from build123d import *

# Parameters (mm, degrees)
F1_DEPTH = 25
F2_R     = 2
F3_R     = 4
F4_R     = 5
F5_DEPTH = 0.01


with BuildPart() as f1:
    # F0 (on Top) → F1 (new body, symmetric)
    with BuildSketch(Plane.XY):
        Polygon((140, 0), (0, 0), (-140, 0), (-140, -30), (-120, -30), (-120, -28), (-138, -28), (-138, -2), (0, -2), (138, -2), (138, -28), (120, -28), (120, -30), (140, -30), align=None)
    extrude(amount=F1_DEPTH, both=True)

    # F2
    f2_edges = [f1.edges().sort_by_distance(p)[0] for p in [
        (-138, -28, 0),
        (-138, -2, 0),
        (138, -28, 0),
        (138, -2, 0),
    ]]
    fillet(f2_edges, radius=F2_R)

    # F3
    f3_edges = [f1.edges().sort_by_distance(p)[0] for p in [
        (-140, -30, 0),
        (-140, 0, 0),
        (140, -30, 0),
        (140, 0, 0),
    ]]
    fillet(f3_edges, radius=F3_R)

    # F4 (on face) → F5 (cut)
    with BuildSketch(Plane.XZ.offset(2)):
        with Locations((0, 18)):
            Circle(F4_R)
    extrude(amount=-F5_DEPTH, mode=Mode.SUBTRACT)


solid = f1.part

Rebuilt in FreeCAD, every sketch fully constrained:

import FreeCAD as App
import Part
import Sketcher


def edges_at(feature, points):
    """Names of the edges that pass closest to the given points."""
    edges = feature.Shape.Edges
    near = lambda p: min(range(len(edges)), key=lambda i: edges[i].distToShape(Part.Vertex(*p))[0])
    return sorted({f"Edge{near(p) + 1}" for p in points})

doc = App.newDocument("Part")
params = doc.addObject("Spreadsheet::Sheet", "Params")
for row, (alias, value) in enumerate([
    ("sketch1_width", "280 mm"),
    ("sketch1_width2", "20 mm"),
    ("sketch1_width3", "18 mm"),
    ("sketch1_height", "30 mm"),
    ("sketch1_height2", "2 mm"),
    ("pad1_length", "50 mm"),
    ("fillet_radius", "2 mm"),
    ("fillet2_radius", "4 mm"),
    ("sketch2_diameter", "10 mm"),
    ("pocket1_length", "0.01 mm"),
], start=1):
    params.set(f"A{row}", alias)
    params.set(f"B{row}", "=" + value)
    params.setAlias(f"B{row}", alias)

body = doc.addObject("PartDesign::Body", "Body")

sketch1 = doc.addObject("Sketcher::SketchObject", "Sketch")
body.addObject(sketch1)
sketch1.AttachmentSupport = (doc.XY_Plane, [""])
sketch1.MapMode = "FlatFace"
sketch1.addGeometry(Part.LineSegment(App.Vector(140, 0, 0), App.Vector(-140, 0, 0)), False)
sketch1.addGeometry(Part.LineSegment(App.Vector(-140, 0, 0), App.Vector(-140, -30, 0)), False)
sketch1.addGeometry(Part.LineSegment(App.Vector(-140, -30, 0), App.Vector(-120, -30, 0)), False)
sketch1.addGeometry(Part.LineSegment(App.Vector(-120, -30, 0), App.Vector(-120, -28, 0)), False)
sketch1.addGeometry(Part.LineSegment(App.Vector(-120, -28, 0), App.Vector(-138, -28, 0)), False)
sketch1.addGeometry(Part.LineSegment(App.Vector(-138, -28, 0), App.Vector(-138, -2, 0)), False)
sketch1.addGeometry(Part.LineSegment(App.Vector(-138, -2, 0), App.Vector(138, -2, 0)), False)
sketch1.addGeometry(Part.LineSegment(App.Vector(138, -2, 0), App.Vector(138, -28, 0)), False)
sketch1.addGeometry(Part.LineSegment(App.Vector(138, -28, 0), App.Vector(120, -28, 0)), False)
sketch1.addGeometry(Part.LineSegment(App.Vector(120, -28, 0), App.Vector(120, -30, 0)), False)
sketch1.addGeometry(Part.LineSegment(App.Vector(120, -30, 0), App.Vector(140, -30, 0)), False)
sketch1.addGeometry(Part.LineSegment(App.Vector(140, -30, 0), App.Vector(140, 0, 0)), False)
sketch1.addConstraint(Sketcher.Constraint("Coincident", 0, 2, 1, 1))
sketch1.addConstraint(Sketcher.Constraint("Coincident", 1, 2, 2, 1))
sketch1.addConstraint(Sketcher.Constraint("Coincident", 2, 2, 3, 1))
sketch1.addConstraint(Sketcher.Constraint("Coincident", 3, 2, 4, 1))
sketch1.addConstraint(Sketcher.Constraint("Coincident", 4, 2, 5, 1))
sketch1.addConstraint(Sketcher.Constraint("Coincident", 5, 2, 6, 1))
sketch1.addConstraint(Sketcher.Constraint("Coincident", 6, 2, 7, 1))
sketch1.addConstraint(Sketcher.Constraint("Coincident", 7, 2, 8, 1))
sketch1.addConstraint(Sketcher.Constraint("Coincident", 8, 2, 9, 1))
sketch1.addConstraint(Sketcher.Constraint("Coincident", 9, 2, 10, 1))
sketch1.addConstraint(Sketcher.Constraint("Coincident", 10, 2, 11, 1))
sketch1.addConstraint(Sketcher.Constraint("Coincident", 11, 2, 0, 1))
sketch1.addConstraint(Sketcher.Constraint("Horizontal", 0))
sketch1.addConstraint(Sketcher.Constraint("Vertical", 1))
sketch1.addConstraint(Sketcher.Constraint("Horizontal", 2))
sketch1.addConstraint(Sketcher.Constraint("Vertical", 3))
sketch1.addConstraint(Sketcher.Constraint("Horizontal", 4))
sketch1.addConstraint(Sketcher.Constraint("Vertical", 5))
sketch1.addConstraint(Sketcher.Constraint("Horizontal", 6))
sketch1.addConstraint(Sketcher.Constraint("Vertical", 7))
sketch1.addConstraint(Sketcher.Constraint("Horizontal", 8))
sketch1.addConstraint(Sketcher.Constraint("Vertical", 9))
sketch1.addConstraint(Sketcher.Constraint("Horizontal", 10))
sketch1.addConstraint(Sketcher.Constraint("Vertical", 11))
sketch1.addConstraint(Sketcher.Constraint("Symmetric", 0, 2, 11, 2, -1, 1))
sketch1.addConstraint(Sketcher.Constraint("Symmetric", 4, 2, 7, 2, -2))
sketch1.addConstraint(Sketcher.Constraint("Symmetric", 2, 2, 9, 2, -2))
sketch1.addConstraint(Sketcher.Constraint("DistanceX", 0, 2, 0, 1, 280.0))
sketch1.addConstraint(Sketcher.Constraint("DistanceX", 2, 1, 2, 2, 20.0))
sketch1.addConstraint(Sketcher.Constraint("DistanceX", 4, 2, 4, 1, 18.0))
sketch1.addConstraint(Sketcher.Constraint("DistanceY", 1, 2, 1, 1, 30.0))
sketch1.addConstraint(Sketcher.Constraint("DistanceY", 3, 1, 3, 2, 2.0))
sketch1.addConstraint(Sketcher.Constraint("DistanceY", 5, 1, 5, 2, 26.0))
sketch1.setExpression("Constraints[27]", "Params.sketch1_width")
sketch1.setExpression("Constraints[28]", "Params.sketch1_width2")
sketch1.setExpression("Constraints[29]", "Params.sketch1_width3")
sketch1.setExpression("Constraints[30]", "Params.sketch1_height")
sketch1.setExpression("Constraints[31]", "Params.sketch1_height2")
pad1 = doc.addObject("PartDesign::Pad", "Pad")
body.addObject(pad1)
pad1.Profile = sketch1
pad1.setExpression("Length", "Params.pad1_length")
pad1.Midplane = True
doc.recompute()

fillet = doc.addObject("PartDesign::Fillet", "Fillet")
body.addObject(fillet)
fillet.Base = (pad1, edges_at(pad1, [
    (-138, -28, 0),
    (-138, -2, 0),
    (138, -28, 0),
    (138, -2, 0),
]))
fillet.setExpression("Radius", "Params.fillet_radius")
doc.recompute()

fillet2 = doc.addObject("PartDesign::Fillet", "Fillet001")
body.addObject(fillet2)
fillet2.Base = (fillet, edges_at(fillet, [
    (-140, -30, 0),
    (-140, 0, 0),
    (140, -30, 0),
    (140, 0, 0),
]))
fillet2.setExpression("Radius", "Params.fillet2_radius")

sketch2 = doc.addObject("Sketcher::SketchObject", "Sketch001")
body.addObject(sketch2)
sketch2.AttachmentSupport = (doc.XZ_Plane, [""])
sketch2.MapMode = "FlatFace"
sketch2.AttachmentOffset = App.Placement(App.Vector(0, 0, 2), App.Rotation())
sketch2.addGeometry(Part.Circle(App.Vector(0, 18, 0), App.Vector(0, 0, 1), 5), False)
sketch2.addConstraint(Sketcher.Constraint("PointOnObject", 0, 3, -2))
sketch2.addConstraint(Sketcher.Constraint("Diameter", 0, 10.0))
sketch2.addConstraint(Sketcher.Constraint("DistanceY", -1, 1, 0, 3, 18.0))
sketch2.setExpression("Constraints[1]", "Params.sketch2_diameter")
pocket1 = doc.addObject("PartDesign::Pocket", "Pocket")
body.addObject(pocket1)
pocket1.Profile = sketch2
pocket1.setExpression("Length", "Params.pocket1_length")

doc.recompute()
